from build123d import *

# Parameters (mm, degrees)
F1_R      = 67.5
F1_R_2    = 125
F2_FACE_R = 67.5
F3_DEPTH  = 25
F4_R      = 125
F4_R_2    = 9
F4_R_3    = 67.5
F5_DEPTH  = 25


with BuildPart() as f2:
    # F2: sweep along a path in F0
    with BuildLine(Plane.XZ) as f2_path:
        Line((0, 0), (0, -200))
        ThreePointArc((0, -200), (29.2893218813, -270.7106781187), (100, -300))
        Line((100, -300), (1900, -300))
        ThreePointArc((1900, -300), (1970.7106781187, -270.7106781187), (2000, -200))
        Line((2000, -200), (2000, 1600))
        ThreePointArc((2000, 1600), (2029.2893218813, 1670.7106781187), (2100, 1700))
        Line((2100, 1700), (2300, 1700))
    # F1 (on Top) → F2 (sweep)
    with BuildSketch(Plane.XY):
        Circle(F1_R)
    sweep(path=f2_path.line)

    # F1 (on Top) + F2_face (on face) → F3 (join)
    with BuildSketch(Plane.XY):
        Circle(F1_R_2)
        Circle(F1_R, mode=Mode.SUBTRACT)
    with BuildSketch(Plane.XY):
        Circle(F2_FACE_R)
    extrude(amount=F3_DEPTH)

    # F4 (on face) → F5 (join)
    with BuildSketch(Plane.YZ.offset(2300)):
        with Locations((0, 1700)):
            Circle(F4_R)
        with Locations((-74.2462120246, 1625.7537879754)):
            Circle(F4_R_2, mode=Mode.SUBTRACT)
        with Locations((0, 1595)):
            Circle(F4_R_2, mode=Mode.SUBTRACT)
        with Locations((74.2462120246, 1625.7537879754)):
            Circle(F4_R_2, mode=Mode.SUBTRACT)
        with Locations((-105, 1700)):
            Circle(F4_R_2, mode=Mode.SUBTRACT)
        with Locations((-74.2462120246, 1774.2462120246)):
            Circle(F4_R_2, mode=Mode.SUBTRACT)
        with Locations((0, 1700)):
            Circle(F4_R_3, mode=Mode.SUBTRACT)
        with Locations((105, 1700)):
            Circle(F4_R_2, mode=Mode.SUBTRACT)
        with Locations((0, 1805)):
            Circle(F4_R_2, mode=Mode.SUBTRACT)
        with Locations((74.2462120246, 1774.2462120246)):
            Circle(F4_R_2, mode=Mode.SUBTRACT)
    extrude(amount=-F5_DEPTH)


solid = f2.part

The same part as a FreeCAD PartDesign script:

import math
import FreeCAD as App
import Part
import Sketcher
from FreeCAD import Vector

doc = App.newDocument("Part")
params = doc.addObject("Spreadsheet::Sheet", "Params")
for row, (alias, value) in enumerate([
    ("sketch1_diameter", "135 mm"),
    ("sketch2_radius", "100 mm"),
    ("sketch2_width", "1800 mm"),
    ("sketch2_width2", "200 mm"),
    ("sketch3_diameter", "250 mm"),
    ("pad1_length", "25 mm"),
    ("sketch4_diameter", "250 mm"),
    ("sketch4_diameter2", "18 mm"),
    ("sketch4_diameter3", "135 mm"),
    ("pad2_length", "25 mm"),
], start=1):
    params.set(f"A{row}", alias)
    params.set(f"B{row}", "=" + value)
    params.setAlias(f"B{row}", alias)

body = doc.addObject("PartDesign::Body", "Body")

# Sketch on XY plane
sketch1 = body.newObject("Sketcher::SketchObject", "Sketch")
sketch1.AttachmentSupport = (doc.getObject("XY_Plane"), [""])
sketch1.MapMode = "FlatFace"
sketch1.addGeometry(Part.Circle(Vector(0, 0, 0), Vector(0, 0, 1), 67.5), False)
sketch1.addConstraint(Sketcher.Constraint("Coincident", 0, 3, -1, 1))
sketch1.addConstraint(Sketcher.Constraint("Diameter", 0, 135.0))
sketch1.setExpression("Constraints[1]", "Params.sketch1_diameter")

# Sketch on XZ plane
sketch2 = body.newObject("Sketcher::SketchObject", "Sketch001")
sketch2.AttachmentSupport = (doc.getObject("XZ_Plane"), [""])
sketch2.MapMode = "FlatFace"
sketch2.addGeometry(Part.LineSegment(Vector(0, 0, 0), Vector(0, -200, 0)), False)
sketch2.addGeometry(Part.ArcOfCircle(Part.Circle(Vector(100, -200, 0), Vector(0, 0, 1), 100), math.radians(180), math.radians(270)), False)
sketch2.addGeometry(Part.LineSegment(Vector(100, -300, 0), Vector(1900, -300, 0)), False)
sketch2.addGeometry(Part.ArcOfCircle(Part.Circle(Vector(1900, -200, 0), Vector(0, 0, 1), 100), math.radians(-90), math.radians(0)), False)
sketch2.addGeometry(Part.LineSegment(Vector(2000, -200, 0), Vector(2000, 1600, 0)), False)
sketch2.addGeometry(Part.ArcOfCircle(Part.Circle(Vector(2100, 1600, 0), Vector(0, 0, 1), 100), math.radians(90), math.radians(180)), False)
sketch2.addGeometry(Part.LineSegment(Vector(2100, 1700, 0), Vector(2300, 1700, 0)), False)
sketch2.addConstraint(Sketcher.Constraint("Tangent", 0, 2, 1, 1))
sketch2.addConstraint(Sketcher.Constraint("Tangent", 1, 2, 2, 1))
sketch2.addConstraint(Sketcher.Constraint("Tangent", 2, 2, 3, 1))
sketch2.addConstraint(Sketcher.Constraint("Tangent", 3, 2, 4, 1))
sketch2.addConstraint(Sketcher.Constraint("Tangent", 4, 2, 5, 2))
sketch2.addConstraint(Sketcher.Constraint("Tangent", 5, 1, 6, 1))
sketch2.addConstraint(Sketcher.Constraint("Vertical", 0))
sketch2.addConstraint(Sketcher.Constraint("Horizontal", 2))
sketch2.addConstraint(Sketcher.Constraint("Vertical", 4))
sketch2.addConstraint(Sketcher.Constraint("Horizontal", 6))
sketch2.addConstraint(Sketcher.Constraint("Coincident", 0, 1, -1, 1))
sketch2.addConstraint(Sketcher.Constraint("Equal", 1, 3))
sketch2.addConstraint(Sketcher.Constraint("Equal", 3, 5))
sketch2.addConstraint(Sketcher.Constraint("Equal", 6, 0))
sketch2.addConstraint(Sketcher.Constraint("Equal", 2, 4))
sketch2.addConstraint(Sketcher.Constraint("Radius", 1, 100.0))
sketch2.addConstraint(Sketcher.Constraint("DistanceX", 2, 1, 2, 2, 1800.0))
sketch2.addConstraint(Sketcher.Constraint("DistanceX", 6, 1, 6, 2, 200.0))
sketch2.setExpression("Constraints[15]", "Params.sketch2_radius")
sketch2.setExpression("Constraints[16]", "Params.sketch2_width")
sketch2.setExpression("Constraints[17]", "Params.sketch2_width2")
doc.recompute()

additivepipe = body.newObject("PartDesign::AdditivePipe", "AdditivePipe")
additivepipe.Profile = sketch1
additivepipe.Spine = (sketch2, ["Edge1", "Edge2", "Edge3", "Edge4", "Edge5", "Edge6", "Edge7"])

# Sketch on XY plane
sketch3 = body.newObject("Sketcher::SketchObject", "Sketch002")
sketch3.AttachmentSupport = (doc.getObject("XY_Plane"), [""])
sketch3.MapMode = "FlatFace"
sketch3.addGeometry(Part.Circle(Vector(0, 0, 0), Vector(0, 0, 1), 125), False)
sketch3.addConstraint(Sketcher.Constraint("Coincident", 0, 3, -1, 1))
sketch3.addConstraint(Sketcher.Constraint("Diameter", 0, 250.0))
sketch3.setExpression("Constraints[1]", "Params.sketch3_diameter")
pad1 = body.newObject("PartDesign::Pad", "Pad")
pad1.Profile = sketch3
pad1.setExpression("Length", "Params.pad1_length")

# Sketch on YZ plane
sketch4 = body.newObject("Sketcher::SketchObject", "Sketch003")
sketch4.AttachmentSupport = (doc.getObject("YZ_Plane"), [""])
sketch4.MapMode = "FlatFace"
sketch4.AttachmentOffset = App.Placement(Vector(0, 0, 2300), App.Rotation())
sketch4.addGeometry(Part.Circle(Vector(0, 1700, 0), Vector(0, 0, 1), 125), False)
sketch4.addGeometry(Part.Circle(Vector(-74.246212, 1625.753788, 0), Vector(0, 0, 1), 9), False)
sketch4.addGeometry(Part.Circle(Vector(0, 1595, 0), Vector(0, 0, 1), 9), False)
sketch4.addGeometry(Part.Circle(Vector(74.246212, 1625.753788, 0), Vector(0, 0, 1), 9), False)
sketch4.addGeometry(Part.Circle(Vector(-105, 1700, 0), Vector(0, 0, 1), 9), False)
sketch4.addGeometry(Part.Circle(Vector(-74.246212, 1774.246212, 0), Vector(0, 0, 1), 9), False)
sketch4.addGeometry(Part.Circle(Vector(0, 1700, 0), Vector(0, 0, 1), 67.5), False)
sketch4.addGeometry(Part.Circle(Vector(105, 1700, 0), Vector(0, 0, 1), 9), False)
sketch4.addGeometry(Part.Circle(Vector(0, 1805, 0), Vector(0, 0, 1), 9), False)
sketch4.addGeometry(Part.Circle(Vector(74.246212, 1774.246212, 0), Vector(0, 0, 1), 9), False)
sketch4.addConstraint(Sketcher.Constraint("Coincident", 6, 3, 0, 3))
sketch4.addConstraint(Sketcher.Constraint("Equal", 1, 2))
sketch4.addConstraint(Sketcher.Constraint("Equal", 2, 3))
sketch4.addConstraint(Sketcher.Constraint("Equal", 3, 4))
sketch4.addConstraint(Sketcher.Constraint("Equal", 4, 5))
sketch4.addConstraint(Sketcher.Constraint("Equal", 5, 7))
sketch4.addConstraint(Sketcher.Constraint("Equal", 7, 8))
sketch4.addConstraint(Sketcher.Constraint("Equal", 8, 9))
sketch4.addConstraint(Sketcher.Constraint("Symmetric", 1, 3, 3, 3, -2))
sketch4.addConstraint(Sketcher.Constraint("Symmetric", 4, 3, 7, 3, -2))
sketch4.addConstraint(Sketcher.Constraint("Symmetric", 5, 3, 9, 3, -2))
sketch4.addConstraint(Sketcher.Constraint("PointOnObject", 0, 3, -2))
sketch4.addConstraint(Sketcher.Constraint("PointOnObject", 2, 3, -2))
sketch4.addConstraint(Sketcher.Constraint("PointOnObject", 8, 3, -2))
sketch4.addConstraint(Sketcher.Constraint("Horizontal", 0, 3, 4, 3))
sketch4.addConstraint(Sketcher.Constraint("Vertical", 1, 3, 5, 3))
sketch4.addConstraint(Sketcher.Constraint("Diameter", 0, 250.0))
sketch4.addConstraint(Sketcher.Constraint("Diameter", 1, 18.0))
sketch4.addConstraint(Sketcher.Constraint("Diameter", 6, 135.0))
sketch4.addConstraint(Sketcher.Constraint("DistanceY", -1, 1, 0, 3, 1700.0))
sketch4.addConstraint(Sketcher.Constraint("DistanceY", -1, 1, 2, 3, 1595.0))
sketch4.addConstraint(Sketcher.Constraint("DistanceX", 4, 3, -1, 1, 105.0))
sketch4.addConstraint(Sketcher.Constraint("DistanceY", -1, 1, 8, 3, 1805.0))
sketch4.addConstraint(Sketcher.Constraint("DistanceX", 1, 3, -1, 1, 74.246212))
sketch4.addConstraint(Sketcher.Constraint("DistanceY", -1, 1, 1, 3, 1625.753788))
sketch4.addConstraint(Sketcher.Constraint("DistanceY", -1, 1, 5, 3, 1774.246212))
sketch4.setExpression("Constraints[16]", "Params.sketch4_diameter")
sketch4.setExpression("Constraints[17]", "Params.sketch4_diameter2")
sketch4.setExpression("Constraints[18]", "Params.sketch4_diameter3")
pad2 = body.newObject("PartDesign::Pad", "Pad001")
pad2.Profile = sketch4
pad2.setExpression("Length", "Params.pad2_length")
pad2.Reversed = True

doc.recompute()
